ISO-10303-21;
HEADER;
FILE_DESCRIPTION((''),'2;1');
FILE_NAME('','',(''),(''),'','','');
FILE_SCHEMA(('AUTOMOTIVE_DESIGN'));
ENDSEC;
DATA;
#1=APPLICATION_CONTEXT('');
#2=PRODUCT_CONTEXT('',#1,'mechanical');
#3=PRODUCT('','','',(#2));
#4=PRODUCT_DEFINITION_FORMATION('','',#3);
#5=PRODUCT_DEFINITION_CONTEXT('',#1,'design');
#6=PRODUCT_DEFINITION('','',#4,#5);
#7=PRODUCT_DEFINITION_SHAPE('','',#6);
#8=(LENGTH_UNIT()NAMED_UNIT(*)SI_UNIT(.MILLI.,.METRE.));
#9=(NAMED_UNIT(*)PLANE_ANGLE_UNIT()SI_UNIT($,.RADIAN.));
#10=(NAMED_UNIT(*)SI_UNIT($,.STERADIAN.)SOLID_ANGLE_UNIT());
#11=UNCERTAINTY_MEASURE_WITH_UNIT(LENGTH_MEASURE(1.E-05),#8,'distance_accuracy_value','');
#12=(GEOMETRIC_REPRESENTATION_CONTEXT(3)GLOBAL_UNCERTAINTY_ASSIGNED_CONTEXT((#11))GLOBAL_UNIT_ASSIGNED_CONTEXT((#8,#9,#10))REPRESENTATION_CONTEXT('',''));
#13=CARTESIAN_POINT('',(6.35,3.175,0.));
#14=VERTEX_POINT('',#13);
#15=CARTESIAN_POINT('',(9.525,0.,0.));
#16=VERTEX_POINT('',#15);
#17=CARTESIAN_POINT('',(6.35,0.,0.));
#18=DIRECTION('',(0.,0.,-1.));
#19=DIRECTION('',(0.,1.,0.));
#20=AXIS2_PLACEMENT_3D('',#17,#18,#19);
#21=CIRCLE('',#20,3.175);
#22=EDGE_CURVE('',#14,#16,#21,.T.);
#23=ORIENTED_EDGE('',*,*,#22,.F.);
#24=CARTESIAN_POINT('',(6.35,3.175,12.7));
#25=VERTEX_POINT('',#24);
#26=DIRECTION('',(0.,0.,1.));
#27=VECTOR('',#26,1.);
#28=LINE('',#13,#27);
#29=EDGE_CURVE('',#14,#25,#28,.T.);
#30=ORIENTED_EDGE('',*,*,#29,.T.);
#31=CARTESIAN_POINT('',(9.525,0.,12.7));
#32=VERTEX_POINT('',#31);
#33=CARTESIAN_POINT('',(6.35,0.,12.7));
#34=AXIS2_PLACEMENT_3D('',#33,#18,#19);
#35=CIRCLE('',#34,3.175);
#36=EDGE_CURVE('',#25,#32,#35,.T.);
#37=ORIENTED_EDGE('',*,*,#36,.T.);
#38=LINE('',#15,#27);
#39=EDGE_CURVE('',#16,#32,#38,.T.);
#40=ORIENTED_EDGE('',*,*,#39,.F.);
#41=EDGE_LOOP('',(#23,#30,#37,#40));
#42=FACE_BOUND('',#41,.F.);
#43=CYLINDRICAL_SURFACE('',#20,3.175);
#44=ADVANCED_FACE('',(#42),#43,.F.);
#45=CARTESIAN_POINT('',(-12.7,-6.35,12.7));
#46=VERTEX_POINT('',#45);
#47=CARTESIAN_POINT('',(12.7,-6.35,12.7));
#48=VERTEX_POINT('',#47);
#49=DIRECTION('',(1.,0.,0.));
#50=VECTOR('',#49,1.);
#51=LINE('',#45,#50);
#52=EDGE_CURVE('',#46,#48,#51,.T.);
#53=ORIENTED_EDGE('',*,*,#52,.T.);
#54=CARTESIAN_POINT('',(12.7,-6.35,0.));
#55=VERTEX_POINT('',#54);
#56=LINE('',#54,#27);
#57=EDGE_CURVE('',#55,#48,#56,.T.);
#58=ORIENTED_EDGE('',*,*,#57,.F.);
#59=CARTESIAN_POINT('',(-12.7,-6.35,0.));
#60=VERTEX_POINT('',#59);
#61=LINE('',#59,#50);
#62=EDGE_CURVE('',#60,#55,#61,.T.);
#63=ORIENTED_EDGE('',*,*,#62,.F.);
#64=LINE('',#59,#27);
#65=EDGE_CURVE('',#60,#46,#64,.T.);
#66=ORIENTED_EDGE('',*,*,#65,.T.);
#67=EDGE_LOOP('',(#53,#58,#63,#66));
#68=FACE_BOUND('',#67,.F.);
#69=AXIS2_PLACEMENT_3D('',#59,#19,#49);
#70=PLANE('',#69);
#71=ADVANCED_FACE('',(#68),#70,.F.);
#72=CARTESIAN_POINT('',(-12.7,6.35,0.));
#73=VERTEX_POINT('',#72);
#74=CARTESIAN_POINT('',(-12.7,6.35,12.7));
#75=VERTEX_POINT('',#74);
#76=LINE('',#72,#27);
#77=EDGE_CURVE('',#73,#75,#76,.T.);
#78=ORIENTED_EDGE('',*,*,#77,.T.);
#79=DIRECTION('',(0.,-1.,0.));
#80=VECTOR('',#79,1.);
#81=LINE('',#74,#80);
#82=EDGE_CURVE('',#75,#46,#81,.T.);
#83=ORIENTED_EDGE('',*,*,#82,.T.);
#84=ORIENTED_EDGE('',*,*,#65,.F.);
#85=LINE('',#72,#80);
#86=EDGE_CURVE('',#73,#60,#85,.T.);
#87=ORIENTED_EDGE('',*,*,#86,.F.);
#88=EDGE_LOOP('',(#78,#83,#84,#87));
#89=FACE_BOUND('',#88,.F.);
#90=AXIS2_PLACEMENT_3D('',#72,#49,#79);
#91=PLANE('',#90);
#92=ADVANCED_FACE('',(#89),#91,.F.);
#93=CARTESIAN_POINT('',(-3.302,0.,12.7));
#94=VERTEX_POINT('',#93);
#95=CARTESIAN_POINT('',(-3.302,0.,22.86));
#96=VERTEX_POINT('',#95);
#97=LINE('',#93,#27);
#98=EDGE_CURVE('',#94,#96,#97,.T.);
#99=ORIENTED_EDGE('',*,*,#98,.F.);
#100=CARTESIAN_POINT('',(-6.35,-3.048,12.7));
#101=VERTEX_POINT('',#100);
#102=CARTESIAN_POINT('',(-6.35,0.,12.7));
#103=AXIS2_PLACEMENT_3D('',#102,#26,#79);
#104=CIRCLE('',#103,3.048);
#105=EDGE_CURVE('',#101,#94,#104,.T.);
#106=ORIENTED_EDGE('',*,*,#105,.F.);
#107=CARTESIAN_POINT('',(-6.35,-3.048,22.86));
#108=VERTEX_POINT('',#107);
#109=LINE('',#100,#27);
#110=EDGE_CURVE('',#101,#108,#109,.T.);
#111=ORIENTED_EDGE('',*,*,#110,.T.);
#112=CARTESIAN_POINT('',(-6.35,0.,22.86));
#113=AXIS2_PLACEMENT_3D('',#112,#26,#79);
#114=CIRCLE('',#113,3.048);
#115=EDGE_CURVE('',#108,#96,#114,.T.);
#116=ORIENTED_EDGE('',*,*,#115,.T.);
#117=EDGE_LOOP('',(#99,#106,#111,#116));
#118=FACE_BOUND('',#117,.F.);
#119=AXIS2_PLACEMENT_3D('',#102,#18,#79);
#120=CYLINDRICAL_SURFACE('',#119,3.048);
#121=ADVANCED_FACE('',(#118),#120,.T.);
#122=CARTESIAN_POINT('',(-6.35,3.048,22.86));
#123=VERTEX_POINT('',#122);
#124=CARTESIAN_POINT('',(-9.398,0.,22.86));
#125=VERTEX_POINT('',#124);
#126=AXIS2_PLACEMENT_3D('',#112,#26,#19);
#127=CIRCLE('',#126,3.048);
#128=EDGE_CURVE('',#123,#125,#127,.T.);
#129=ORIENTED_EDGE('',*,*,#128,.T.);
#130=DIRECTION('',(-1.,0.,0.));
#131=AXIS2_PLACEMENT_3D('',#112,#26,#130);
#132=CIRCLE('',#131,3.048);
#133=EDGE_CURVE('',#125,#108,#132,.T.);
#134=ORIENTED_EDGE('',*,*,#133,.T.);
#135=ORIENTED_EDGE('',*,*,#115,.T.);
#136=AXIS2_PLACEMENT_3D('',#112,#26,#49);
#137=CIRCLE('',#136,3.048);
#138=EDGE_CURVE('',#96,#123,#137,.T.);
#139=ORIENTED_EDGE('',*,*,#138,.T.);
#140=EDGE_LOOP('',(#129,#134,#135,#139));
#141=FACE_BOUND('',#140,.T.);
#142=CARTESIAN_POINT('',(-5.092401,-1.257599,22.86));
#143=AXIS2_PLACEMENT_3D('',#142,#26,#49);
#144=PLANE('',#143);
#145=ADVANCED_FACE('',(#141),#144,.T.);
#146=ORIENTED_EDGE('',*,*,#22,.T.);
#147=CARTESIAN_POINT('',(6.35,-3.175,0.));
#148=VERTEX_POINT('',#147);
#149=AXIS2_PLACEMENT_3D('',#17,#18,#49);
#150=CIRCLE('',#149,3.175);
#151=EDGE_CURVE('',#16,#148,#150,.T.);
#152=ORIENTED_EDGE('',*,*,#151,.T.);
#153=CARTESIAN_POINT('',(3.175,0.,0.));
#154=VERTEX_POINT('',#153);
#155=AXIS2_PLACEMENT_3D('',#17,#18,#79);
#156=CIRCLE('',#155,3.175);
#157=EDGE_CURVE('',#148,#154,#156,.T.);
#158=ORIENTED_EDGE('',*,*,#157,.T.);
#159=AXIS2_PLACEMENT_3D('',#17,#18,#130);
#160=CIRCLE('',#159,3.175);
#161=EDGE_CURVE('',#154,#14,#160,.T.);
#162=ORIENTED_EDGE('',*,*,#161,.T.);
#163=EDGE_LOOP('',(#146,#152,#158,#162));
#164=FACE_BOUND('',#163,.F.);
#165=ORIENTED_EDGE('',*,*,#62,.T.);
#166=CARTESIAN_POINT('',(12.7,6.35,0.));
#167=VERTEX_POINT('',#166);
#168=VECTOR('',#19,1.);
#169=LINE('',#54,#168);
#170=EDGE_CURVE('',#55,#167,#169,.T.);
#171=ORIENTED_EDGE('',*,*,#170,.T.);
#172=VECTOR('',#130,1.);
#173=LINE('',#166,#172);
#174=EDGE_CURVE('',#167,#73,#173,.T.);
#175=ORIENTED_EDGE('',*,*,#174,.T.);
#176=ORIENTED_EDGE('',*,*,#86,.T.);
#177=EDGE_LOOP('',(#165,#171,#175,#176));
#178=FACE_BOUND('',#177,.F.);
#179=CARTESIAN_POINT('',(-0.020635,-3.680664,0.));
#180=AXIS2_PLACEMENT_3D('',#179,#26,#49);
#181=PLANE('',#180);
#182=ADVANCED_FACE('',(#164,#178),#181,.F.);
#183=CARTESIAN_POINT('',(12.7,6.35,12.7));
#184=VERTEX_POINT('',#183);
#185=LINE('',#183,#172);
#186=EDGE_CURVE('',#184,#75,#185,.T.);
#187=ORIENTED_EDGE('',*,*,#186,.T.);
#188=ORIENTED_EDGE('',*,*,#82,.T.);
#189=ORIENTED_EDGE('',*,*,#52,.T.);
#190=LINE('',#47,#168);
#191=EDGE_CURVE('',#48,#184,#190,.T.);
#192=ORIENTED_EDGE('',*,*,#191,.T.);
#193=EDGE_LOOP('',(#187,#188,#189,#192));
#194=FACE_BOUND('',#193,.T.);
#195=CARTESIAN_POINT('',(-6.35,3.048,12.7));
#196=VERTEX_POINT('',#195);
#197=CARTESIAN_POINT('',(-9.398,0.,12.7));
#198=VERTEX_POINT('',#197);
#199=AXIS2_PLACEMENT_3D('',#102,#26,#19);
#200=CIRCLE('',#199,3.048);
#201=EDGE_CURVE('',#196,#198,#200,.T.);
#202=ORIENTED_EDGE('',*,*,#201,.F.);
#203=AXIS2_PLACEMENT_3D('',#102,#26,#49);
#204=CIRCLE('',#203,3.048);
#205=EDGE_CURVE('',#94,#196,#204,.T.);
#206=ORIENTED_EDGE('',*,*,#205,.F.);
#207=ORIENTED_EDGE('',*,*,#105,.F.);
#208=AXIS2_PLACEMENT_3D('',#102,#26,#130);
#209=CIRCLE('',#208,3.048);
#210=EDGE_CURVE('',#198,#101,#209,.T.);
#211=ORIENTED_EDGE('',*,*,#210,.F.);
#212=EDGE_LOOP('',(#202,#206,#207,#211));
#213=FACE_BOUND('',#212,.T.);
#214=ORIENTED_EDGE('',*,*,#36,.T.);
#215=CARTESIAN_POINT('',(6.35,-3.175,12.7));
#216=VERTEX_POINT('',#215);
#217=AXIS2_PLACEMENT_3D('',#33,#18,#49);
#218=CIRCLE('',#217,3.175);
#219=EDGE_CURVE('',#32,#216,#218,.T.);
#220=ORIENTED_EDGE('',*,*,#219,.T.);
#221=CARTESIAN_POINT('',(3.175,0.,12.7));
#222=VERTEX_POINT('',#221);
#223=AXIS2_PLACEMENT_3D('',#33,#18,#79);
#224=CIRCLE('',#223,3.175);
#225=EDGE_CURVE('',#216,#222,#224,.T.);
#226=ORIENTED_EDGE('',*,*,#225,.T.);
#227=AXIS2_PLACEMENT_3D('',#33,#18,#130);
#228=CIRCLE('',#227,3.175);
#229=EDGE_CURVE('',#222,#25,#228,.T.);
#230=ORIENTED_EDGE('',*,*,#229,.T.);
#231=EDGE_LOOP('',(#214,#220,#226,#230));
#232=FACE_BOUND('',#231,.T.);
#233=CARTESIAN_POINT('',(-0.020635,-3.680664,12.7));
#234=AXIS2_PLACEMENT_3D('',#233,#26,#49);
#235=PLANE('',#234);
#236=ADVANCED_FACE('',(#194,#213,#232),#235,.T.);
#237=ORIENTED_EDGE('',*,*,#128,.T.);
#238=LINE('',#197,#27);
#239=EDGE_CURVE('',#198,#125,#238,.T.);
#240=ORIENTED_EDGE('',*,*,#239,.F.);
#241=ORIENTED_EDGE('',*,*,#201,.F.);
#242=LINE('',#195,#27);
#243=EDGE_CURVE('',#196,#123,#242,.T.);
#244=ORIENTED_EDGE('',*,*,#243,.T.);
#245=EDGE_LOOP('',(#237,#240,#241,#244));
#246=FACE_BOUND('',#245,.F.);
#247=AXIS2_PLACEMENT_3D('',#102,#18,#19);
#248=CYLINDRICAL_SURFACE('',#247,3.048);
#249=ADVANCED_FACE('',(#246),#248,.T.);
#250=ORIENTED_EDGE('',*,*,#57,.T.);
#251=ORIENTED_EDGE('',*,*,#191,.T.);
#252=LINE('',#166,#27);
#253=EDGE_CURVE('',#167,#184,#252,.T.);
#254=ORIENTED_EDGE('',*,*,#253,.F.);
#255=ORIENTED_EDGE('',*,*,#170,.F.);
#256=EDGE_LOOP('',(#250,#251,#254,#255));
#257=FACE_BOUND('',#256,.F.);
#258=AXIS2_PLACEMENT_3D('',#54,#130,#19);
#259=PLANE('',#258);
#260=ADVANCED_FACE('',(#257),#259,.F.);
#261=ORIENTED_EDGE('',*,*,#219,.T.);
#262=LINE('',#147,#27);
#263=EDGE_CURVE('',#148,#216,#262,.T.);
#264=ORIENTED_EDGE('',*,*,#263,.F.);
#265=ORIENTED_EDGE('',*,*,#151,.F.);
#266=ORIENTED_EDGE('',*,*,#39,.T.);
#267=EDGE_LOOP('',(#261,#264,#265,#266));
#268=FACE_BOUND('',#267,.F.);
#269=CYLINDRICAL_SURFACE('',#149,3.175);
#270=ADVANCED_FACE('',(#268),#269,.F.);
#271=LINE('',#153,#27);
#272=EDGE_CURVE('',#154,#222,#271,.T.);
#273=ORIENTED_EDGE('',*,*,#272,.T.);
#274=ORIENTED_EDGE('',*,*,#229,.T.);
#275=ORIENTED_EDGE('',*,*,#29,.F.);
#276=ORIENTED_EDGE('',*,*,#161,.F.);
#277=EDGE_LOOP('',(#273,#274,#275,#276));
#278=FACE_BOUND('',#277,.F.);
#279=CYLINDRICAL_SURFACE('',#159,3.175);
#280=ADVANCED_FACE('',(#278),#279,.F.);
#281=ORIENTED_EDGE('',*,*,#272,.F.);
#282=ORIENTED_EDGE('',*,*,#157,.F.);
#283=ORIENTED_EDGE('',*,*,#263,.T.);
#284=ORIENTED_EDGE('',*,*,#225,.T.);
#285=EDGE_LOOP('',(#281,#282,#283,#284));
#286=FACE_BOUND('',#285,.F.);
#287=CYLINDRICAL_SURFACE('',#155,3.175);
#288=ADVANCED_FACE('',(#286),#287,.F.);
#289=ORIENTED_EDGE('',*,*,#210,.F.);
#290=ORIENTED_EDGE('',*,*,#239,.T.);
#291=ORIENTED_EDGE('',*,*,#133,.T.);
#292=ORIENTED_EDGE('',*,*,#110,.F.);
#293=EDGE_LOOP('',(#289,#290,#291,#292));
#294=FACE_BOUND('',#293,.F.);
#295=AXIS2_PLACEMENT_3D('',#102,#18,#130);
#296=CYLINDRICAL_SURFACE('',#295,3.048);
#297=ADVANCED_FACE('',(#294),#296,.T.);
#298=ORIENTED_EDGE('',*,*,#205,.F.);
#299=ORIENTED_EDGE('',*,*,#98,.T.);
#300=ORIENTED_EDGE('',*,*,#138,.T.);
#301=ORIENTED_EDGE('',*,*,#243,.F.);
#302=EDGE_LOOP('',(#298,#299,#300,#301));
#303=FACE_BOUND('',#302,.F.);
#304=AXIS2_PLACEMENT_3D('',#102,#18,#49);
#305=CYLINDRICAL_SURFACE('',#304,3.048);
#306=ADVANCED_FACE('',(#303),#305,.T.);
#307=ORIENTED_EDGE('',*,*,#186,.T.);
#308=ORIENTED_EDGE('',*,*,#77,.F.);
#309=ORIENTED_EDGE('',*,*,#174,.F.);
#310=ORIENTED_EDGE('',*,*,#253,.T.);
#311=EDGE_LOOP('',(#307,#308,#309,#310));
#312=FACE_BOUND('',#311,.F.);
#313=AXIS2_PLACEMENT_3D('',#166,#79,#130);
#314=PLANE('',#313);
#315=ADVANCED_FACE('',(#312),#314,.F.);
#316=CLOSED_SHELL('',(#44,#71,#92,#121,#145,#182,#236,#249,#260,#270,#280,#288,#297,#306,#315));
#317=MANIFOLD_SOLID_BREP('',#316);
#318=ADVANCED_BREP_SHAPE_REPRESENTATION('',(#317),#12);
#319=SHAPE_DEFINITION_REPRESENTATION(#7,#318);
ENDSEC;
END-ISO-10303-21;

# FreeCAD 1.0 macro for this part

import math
import FreeCAD as App
import Part
import Sketcher
Q = App.Units.Quantity

doc = App.newDocument("Part")
body = doc.addObject("PartDesign::Body", "Body")

sketch1 = doc.addObject("Sketcher::SketchObject", "Sketch")
body.addObject(sketch1)
sketch1.AttachmentSupport = (doc.XY_Plane, [""])
sketch1.MapMode = "FlatFace"
sketch1.addGeometry(Part.LineSegment(App.Vector(12.7, -6.3, 0), App.Vector(12.7, 6.3, 0)), False)
sketch1.addGeometry(Part.LineSegment(App.Vector(12.7, 6.3, 0), App.Vector(-12.7, 6.3, 0)), False)
sketch1.addGeometry(Part.LineSegment(App.Vector(-12.7, 6.3, 0), App.Vector(-12.7, -6.3, 0)), False)
sketch1.addGeometry(Part.LineSegment(App.Vector(-12.7, -6.3, 0), App.Vector(12.7, -6.3, 0)), False)
sketch1.addGeometry(Part.ArcOfCircle(Part.Circle(App.Vector(6.3, 0, 0), App.Vector(0, 0, 1), 3.2), math.radians(180), math.radians(270)), False)
sketch1.addGeometry(Part.ArcOfCircle(Part.Circle(App.Vector(6.3, 0, 0), App.Vector(0, 0, 1), 3.2), math.radians(90), math.radians(180)), False)
sketch1.addGeometry(Part.ArcOfCircle(Part.Circle(App.Vector(6.3, 0, 0), App.Vector(0, 0, 1), 3.2), math.radians(0), math.radians(90)), False)
sketch1.addGeometry(Part.ArcOfCircle(Part.Circle(App.Vector(6.3, 0, 0), App.Vector(0, 0, 1), 3.2), math.radians(-90), math.radians(0)), False)
sketch1.addConstraint(Sketcher.Constraint("Coincident", 0, 2, 1, 1))
sketch1.addConstraint(Sketcher.Constraint("Coincident", 1, 2, 2, 1))
sketch1.addConstraint(Sketcher.Constraint("Coincident", 2, 2, 3, 1))
sketch1.addConstraint(Sketcher.Constraint("Coincident", 3, 2, 0, 1))
sketch1.addConstraint(Sketcher.Constraint("Tangent", 4, 1, 5, 2))
sketch1.addConstraint(Sketcher.Constraint("Tangent", 5, 1, 6, 2))
sketch1.addConstraint(Sketcher.Constraint("Tangent", 6, 1, 7, 2))
sketch1.addConstraint(Sketcher.Constraint("Tangent", 7, 1, 4, 2))
sketch1.addConstraint(Sketcher.Constraint("Vertical", 0))
sketch1.addConstraint(Sketcher.Constraint("Horizontal", 1))
sketch1.addConstraint(Sketcher.Constraint("Vertical", 2))
sketch1.addConstraint(Sketcher.Constraint("Horizontal", 3))
sketch1.addConstraint(Sketcher.Constraint("Equal", 4, 5))
sketch1.addConstraint(Sketcher.Constraint("Symmetric", 0, 2, 2, 2, -1, 1))
sketch1.addConstraint(Sketcher.Constraint("Symmetric", 5, 1, 7, 1, -1))
sketch1.addConstraint(Sketcher.Constraint("PointOnObject", 4, 1, -1))
sketch1.addConstraint(Sketcher.Constraint("PointOnObject", 6, 1, -1))
sketch1.addConstraint(Sketcher.Constraint("Vertical", 7, 3, 5, 1))
sketch1.addConstraint(Sketcher.Constraint("DistanceX", 1, 2, 1, 1, Q("1 in")))
sketch1.addConstraint(Sketcher.Constraint("DistanceY", 0, 1, 0, 2, Q("0.5 in")))
sketch1.addConstraint(Sketcher.Constraint("Radius", 4, Q("0.125 in")))
sketch1.addConstraint(Sketcher.Constraint("DistanceX", -1, 1, 4, 3, Q("0.25 in")))
pad1 = doc.addObject("PartDesign::Pad", "Pad")
body.addObject(pad1)
pad1.Profile = sketch1
pad1.Length = Q("0.5 in")

sketch2 = doc.addObject("Sketcher::SketchObject", "Sketch001")
body.addObject(sketch2)
sketch2.AttachmentSupport = (doc.XY_Plane, [""])
sketch2.MapMode = "FlatFace"
sketch2.AttachmentOffset = App.Placement(App.Vector(0, 0, 0.5 * 25.4), App.Rotation())
sketch2.addGeometry(Part.ArcOfCircle(Part.Circle(App.Vector(-6.3, 0, 0), App.Vector(0, 0, 1), 3), math.radians(-90), math.radians(0)), False)
sketch2.addGeometry(Part.ArcOfCircle(Part.Circle(App.Vector(-6.3, 0, 0), App.Vector(0, 0, 1), 3), math.radians(0), math.radians(90)), False)
sketch2.addGeometry(Part.ArcOfCircle(Part.Circle(App.Vector(-6.3, 0, 0), App.Vector(0, 0, 1), 3), math.radians(90), math.radians(180)), False)
sketch2.addGeometry(Part.ArcOfCircle(Part.Circle(App.Vector(-6.3, 0, 0), App.Vector(0, 0, 1), 3), math.radians(180), math.radians(270)), False)
sketch2.addConstraint(Sketcher.Constraint("Tangent", 0, 2, 1, 1))
sketch2.addConstraint(Sketcher.Constraint("Tangent", 1, 2, 2, 1))
sketch2.addConstraint(Sketcher.Constraint("Tangent", 2, 2, 3, 1))
sketch2.addConstraint(Sketcher.Constraint("Tangent", 3, 2, 0, 1))
sketch2.addConstraint(Sketcher.Constraint("Equal", 0, 1))
sketch2.addConstraint(Sketcher.Constraint("Symmetric", 1, 2, 3, 2, -1))
sketch2.addConstraint(Sketcher.Constraint("PointOnObject", 0, 2, -1))
sketch2.addConstraint(Sketcher.Constraint("PointOnObject", 2, 2, -1))
sketch2.addConstraint(Sketcher.Constraint("Vertical", 3, 3, 1, 2))
sketch2.addConstraint(Sketcher.Constraint("Radius", 0, Q("0.12 in")))
sketch2.addConstraint(Sketcher.Constraint("DistanceX", 0, 3, -1, 1, Q("0.25 in")))
pad2 = doc.addObject("PartDesign::Pad", "Pad001")
body.addObject(pad2)
pad2.Profile = sketch2
pad2.Length = Q("0.4 in")

doc.recompute()
